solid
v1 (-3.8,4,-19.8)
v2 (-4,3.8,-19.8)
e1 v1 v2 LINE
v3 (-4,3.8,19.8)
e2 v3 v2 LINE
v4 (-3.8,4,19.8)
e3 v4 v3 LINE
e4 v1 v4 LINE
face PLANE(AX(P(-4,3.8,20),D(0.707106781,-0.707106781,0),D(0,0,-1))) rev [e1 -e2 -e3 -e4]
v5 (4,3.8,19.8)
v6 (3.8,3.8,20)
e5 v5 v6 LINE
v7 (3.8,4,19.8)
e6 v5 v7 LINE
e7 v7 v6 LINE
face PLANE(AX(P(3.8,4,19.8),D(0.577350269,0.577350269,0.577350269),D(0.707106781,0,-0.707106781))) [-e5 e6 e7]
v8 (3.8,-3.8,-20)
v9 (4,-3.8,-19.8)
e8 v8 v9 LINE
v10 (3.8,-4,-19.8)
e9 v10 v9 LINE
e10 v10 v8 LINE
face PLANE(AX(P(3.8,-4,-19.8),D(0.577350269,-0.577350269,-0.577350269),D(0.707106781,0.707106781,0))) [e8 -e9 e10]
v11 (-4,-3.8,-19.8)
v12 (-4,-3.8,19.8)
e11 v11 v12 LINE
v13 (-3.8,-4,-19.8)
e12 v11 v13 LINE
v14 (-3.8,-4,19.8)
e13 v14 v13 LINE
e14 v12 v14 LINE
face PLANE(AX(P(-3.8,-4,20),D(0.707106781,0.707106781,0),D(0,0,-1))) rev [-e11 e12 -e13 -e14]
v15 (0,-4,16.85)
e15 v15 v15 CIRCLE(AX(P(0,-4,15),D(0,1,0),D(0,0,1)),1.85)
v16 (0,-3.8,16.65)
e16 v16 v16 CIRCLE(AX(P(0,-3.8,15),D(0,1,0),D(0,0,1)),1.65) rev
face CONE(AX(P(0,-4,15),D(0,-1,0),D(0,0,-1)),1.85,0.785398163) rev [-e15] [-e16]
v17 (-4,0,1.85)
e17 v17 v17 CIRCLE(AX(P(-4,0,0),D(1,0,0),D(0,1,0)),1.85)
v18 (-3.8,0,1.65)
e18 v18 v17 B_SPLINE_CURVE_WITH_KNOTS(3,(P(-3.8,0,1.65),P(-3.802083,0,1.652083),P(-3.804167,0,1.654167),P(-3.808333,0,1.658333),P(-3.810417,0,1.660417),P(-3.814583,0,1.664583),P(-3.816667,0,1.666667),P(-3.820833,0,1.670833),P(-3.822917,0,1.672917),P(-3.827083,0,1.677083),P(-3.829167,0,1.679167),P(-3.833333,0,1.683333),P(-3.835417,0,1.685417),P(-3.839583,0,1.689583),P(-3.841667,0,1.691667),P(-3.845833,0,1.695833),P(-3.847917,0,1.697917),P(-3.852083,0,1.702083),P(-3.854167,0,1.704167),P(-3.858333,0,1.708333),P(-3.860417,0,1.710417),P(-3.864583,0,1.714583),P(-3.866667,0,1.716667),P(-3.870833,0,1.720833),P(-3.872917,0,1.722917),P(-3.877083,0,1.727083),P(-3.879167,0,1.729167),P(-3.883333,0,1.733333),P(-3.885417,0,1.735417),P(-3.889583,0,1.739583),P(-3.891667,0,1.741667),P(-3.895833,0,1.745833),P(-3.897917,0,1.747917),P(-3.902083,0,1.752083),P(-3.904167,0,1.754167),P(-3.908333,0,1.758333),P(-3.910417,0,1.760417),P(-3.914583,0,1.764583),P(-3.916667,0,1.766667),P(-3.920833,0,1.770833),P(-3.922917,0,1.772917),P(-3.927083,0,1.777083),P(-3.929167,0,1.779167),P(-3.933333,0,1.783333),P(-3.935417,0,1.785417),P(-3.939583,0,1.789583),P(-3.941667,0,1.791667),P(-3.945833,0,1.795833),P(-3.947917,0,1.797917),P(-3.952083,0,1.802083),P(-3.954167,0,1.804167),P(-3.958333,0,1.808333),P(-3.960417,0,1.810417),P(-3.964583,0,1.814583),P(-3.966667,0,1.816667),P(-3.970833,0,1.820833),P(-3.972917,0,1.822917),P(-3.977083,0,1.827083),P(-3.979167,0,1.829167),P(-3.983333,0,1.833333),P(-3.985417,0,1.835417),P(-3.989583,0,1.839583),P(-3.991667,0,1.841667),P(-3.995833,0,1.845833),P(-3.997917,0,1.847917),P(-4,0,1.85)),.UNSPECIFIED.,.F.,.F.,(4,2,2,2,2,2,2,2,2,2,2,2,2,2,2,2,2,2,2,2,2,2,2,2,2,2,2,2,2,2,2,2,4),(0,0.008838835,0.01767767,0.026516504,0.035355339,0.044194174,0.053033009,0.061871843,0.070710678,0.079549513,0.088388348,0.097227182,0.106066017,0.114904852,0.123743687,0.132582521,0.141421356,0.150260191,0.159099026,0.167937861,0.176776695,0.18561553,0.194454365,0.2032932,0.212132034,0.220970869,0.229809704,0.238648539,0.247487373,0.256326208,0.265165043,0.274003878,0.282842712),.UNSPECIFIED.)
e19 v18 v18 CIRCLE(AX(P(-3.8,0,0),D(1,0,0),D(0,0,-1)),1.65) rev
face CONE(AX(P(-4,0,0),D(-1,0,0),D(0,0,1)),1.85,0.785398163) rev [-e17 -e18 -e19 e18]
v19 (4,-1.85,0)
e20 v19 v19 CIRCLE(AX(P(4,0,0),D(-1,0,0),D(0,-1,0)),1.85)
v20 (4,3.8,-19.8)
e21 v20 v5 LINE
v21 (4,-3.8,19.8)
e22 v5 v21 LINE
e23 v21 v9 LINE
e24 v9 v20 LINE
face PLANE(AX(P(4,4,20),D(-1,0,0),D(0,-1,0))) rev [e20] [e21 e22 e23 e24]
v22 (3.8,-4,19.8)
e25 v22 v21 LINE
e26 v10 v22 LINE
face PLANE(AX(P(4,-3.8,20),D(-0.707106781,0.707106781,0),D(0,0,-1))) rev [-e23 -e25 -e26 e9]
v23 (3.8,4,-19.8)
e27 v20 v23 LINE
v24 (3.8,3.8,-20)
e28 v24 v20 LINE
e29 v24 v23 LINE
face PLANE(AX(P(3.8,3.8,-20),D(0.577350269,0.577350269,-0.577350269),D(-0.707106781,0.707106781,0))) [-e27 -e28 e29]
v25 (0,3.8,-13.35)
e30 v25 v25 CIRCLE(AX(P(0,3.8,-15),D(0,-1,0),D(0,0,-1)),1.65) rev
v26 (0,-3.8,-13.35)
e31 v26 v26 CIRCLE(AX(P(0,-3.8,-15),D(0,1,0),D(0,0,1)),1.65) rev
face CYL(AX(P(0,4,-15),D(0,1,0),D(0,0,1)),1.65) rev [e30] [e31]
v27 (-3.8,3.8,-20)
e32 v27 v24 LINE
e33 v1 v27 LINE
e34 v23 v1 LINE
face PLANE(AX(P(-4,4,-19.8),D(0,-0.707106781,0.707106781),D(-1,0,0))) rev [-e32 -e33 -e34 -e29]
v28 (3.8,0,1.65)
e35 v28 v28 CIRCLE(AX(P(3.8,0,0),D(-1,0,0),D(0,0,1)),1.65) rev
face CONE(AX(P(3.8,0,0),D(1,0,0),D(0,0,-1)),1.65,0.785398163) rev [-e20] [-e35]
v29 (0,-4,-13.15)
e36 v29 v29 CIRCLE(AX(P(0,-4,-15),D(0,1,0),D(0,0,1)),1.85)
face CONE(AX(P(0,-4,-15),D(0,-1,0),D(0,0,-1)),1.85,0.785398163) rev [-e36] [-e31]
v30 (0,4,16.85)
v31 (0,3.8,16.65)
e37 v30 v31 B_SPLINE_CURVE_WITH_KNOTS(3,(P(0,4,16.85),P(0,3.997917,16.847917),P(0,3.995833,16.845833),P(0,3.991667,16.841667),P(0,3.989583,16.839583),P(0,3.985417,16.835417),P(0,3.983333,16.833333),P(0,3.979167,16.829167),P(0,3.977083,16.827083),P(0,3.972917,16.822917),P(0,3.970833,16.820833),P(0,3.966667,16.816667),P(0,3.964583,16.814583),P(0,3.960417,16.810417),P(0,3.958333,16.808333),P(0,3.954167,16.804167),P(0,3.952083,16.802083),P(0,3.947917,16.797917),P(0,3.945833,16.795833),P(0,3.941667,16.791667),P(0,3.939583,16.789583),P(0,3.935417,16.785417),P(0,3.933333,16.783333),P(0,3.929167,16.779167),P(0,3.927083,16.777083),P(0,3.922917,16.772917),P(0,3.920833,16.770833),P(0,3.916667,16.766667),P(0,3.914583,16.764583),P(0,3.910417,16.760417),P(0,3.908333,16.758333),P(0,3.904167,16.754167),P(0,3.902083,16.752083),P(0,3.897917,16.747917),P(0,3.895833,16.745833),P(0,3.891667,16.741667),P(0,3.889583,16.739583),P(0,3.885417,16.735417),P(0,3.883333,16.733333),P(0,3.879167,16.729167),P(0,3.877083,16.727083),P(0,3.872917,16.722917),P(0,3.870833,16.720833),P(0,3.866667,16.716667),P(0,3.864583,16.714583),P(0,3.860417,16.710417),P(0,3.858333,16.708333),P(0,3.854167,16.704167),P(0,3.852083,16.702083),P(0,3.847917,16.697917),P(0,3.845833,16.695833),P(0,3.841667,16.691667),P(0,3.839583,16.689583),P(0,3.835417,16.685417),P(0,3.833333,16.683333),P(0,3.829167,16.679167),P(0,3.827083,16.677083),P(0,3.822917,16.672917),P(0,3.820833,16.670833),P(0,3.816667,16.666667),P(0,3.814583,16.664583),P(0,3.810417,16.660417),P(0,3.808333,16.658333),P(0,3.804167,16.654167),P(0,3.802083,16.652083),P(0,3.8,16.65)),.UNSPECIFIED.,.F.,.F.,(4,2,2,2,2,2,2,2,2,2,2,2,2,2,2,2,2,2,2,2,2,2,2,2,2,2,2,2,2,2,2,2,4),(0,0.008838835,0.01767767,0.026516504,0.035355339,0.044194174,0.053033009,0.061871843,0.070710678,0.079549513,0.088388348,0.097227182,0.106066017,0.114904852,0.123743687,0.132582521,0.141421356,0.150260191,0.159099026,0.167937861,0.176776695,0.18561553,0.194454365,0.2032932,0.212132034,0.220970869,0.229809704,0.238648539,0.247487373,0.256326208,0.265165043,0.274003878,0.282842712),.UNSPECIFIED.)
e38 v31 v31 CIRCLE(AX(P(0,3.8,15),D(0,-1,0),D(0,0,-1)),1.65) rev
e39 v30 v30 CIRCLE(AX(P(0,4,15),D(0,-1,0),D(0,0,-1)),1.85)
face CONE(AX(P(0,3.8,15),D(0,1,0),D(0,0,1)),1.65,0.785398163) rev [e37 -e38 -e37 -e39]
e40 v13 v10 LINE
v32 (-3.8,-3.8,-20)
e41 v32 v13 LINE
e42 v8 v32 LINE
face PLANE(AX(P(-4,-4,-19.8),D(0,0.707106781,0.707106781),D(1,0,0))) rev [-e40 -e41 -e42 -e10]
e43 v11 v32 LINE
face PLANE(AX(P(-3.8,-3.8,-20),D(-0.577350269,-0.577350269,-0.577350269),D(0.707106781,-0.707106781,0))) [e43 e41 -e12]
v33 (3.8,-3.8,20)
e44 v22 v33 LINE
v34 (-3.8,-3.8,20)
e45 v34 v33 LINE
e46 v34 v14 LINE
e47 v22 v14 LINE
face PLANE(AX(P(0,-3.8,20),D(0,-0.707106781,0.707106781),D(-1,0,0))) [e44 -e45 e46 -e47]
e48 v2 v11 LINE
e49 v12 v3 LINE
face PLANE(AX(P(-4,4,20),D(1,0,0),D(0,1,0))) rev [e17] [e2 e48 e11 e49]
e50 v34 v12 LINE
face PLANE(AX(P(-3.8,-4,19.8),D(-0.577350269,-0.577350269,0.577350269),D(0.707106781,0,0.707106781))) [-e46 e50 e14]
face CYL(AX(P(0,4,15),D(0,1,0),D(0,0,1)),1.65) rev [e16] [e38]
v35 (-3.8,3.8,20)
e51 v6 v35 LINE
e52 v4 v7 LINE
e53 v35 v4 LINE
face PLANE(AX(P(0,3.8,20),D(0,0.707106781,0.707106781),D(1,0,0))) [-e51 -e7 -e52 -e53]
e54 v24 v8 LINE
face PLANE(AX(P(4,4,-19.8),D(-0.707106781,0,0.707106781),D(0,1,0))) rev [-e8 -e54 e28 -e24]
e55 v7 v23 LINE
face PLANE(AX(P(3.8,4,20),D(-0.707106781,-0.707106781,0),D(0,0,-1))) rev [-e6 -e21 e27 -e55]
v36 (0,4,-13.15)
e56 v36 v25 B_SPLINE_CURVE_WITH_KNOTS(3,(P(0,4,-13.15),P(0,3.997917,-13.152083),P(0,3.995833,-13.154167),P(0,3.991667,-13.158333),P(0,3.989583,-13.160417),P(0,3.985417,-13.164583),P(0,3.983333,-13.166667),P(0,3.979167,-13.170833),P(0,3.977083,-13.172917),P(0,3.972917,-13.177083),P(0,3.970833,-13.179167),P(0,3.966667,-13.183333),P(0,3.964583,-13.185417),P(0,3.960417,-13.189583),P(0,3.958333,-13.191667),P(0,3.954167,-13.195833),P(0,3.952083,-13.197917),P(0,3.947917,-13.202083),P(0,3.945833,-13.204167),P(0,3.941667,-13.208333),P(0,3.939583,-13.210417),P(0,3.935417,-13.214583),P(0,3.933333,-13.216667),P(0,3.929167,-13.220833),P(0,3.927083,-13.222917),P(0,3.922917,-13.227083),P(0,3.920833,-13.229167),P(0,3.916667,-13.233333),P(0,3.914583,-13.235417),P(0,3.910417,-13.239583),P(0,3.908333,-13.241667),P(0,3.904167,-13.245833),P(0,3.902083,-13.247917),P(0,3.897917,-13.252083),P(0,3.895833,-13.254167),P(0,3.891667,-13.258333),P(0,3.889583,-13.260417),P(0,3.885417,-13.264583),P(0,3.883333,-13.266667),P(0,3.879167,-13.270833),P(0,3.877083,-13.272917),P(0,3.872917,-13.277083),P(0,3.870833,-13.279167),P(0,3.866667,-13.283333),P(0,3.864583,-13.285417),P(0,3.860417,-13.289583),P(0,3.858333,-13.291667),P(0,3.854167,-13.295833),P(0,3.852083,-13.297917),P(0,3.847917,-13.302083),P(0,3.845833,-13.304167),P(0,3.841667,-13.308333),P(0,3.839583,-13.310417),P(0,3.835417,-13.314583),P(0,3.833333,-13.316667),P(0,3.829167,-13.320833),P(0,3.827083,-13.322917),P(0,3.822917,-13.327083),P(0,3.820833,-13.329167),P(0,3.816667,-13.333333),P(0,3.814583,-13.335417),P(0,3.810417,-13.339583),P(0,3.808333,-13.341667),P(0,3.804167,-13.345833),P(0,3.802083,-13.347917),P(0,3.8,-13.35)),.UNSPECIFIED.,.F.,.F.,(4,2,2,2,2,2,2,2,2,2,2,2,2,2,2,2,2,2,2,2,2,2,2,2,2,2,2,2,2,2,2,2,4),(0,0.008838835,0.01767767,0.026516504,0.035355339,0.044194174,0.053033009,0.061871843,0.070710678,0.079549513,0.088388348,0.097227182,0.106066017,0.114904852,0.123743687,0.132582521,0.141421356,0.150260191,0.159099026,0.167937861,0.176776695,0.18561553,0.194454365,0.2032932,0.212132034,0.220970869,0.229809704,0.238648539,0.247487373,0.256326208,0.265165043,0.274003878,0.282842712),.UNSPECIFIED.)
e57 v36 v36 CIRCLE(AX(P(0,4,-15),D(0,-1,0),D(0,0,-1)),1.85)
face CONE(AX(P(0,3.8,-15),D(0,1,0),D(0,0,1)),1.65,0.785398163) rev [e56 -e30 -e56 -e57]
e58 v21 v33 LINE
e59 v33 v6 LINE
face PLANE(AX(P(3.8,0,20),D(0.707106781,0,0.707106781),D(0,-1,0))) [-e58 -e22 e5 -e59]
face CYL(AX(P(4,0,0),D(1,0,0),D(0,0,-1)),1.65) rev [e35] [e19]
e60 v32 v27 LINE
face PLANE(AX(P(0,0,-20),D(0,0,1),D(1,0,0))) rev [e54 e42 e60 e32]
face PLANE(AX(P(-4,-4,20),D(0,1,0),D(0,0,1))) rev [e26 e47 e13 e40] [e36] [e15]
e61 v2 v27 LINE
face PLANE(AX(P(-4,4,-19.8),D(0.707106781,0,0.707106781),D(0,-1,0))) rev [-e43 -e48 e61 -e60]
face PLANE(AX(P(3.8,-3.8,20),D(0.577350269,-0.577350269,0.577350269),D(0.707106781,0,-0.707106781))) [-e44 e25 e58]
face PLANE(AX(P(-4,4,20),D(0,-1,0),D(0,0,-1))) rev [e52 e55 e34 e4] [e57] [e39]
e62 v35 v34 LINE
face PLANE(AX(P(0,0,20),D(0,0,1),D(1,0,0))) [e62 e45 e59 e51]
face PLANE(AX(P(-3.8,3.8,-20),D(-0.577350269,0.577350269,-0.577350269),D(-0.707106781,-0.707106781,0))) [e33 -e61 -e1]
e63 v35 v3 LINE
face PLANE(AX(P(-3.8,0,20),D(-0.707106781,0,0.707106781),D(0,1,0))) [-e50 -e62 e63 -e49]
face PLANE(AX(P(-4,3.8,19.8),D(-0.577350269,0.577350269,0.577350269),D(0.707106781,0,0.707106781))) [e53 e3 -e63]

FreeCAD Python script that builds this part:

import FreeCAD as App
import Part
import Sketcher

V = App.Vector


def add_polygon(sketch, points):
    """Adds a closed chain of lines whose ends are joined by coincident constraints."""
    first, n = sketch.GeometryCount, len(points)
    for a, b in zip(points, points[1:] + points[:1]):
        sketch.addGeometry(Part.LineSegment(App.Vector(*a, 0), App.Vector(*b, 0)), False)
    for i in range(n):
        sketch.addConstraint(Sketcher.Constraint("Coincident", first + i, 2, first + (i + 1) % n, 1))

doc = App.newDocument("Part")
params = doc.addObject("Spreadsheet::Sheet", "Params")
for row, (alias, value) in enumerate([
    ("sketch1_width", "8 mm"),
    ("pad1_length", "40 mm"),
    ("sketch2_diameter", "3.3 mm"),
    ("hole_diameter", "3.3 mm"),
    ("sketch3_diameter", "3.3 mm"),
    ("hole2_diameter", "3.3 mm"),
    ("chamfer_size", "0.2 mm"),
], start=1):
    params.set(f"A{row}", alias)
    params.set(f"B{row}", "=" + value)
    params.setAlias(f"B{row}", alias)

body = doc.addObject("PartDesign::Body", "Body")

# Sketch on XY plane
sketch1 = doc.addObject("Sketcher::SketchObject", "Sketch")
body.addObject(sketch1)
sketch1.AttachmentSupport = (doc.XY_Plane, [""])
sketch1.MapMode = "FlatFace"
add_polygon(sketch1, [(-4, 4), (-4, -4), (4, -4), (4, 4)])  # lines 0-3
sketch1.addConstraint([
    Sketcher.Constraint("Vertical", 0),
    Sketcher.Constraint("Horizontal", 1),
    Sketcher.Constraint("Vertical", 2),
    Sketcher.Constraint("Horizontal", 3),
    Sketcher.Constraint("Symmetric", 0, 2, 2, 2, -1, 1),
    Sketcher.Constraint("Equal", 3, 0),
    Sketcher.Constraint("DistanceX", 1, 1, 1, 2, 8.0),
])
sketch1.setExpression("Constraints[10]", "Params.sketch1_width")
pad1 = doc.addObject("PartDesign::Pad", "Pad")
body.addObject(pad1)
pad1.Profile = sketch1
pad1.setExpression("Length", "Params.pad1_length")
pad1.Midplane = True

# Sketch on YZ plane
sketch2 = doc.addObject("Sketcher::SketchObject", "Sketch001")
body.addObject(sketch2)
sketch2.AttachmentSupport = (doc.YZ_Plane, [""])
sketch2.MapMode = "FlatFace"
sketch2.AttachmentOffset = App.Placement(V(0, 0, 4), App.Rotation())
sketch2.addGeometry(Part.Circle(V(0, 0, 0), V(0, 0, 1), 1.6), False)
sketch2.addConstraint([
    Sketcher.Constraint("Coincident", 0, 3, -1, 1),
    Sketcher.Constraint("Diameter", 0, 3.3),
])
sketch2.setExpression("Constraints[1]", "Params.sketch2_diameter")
doc.recompute()
hole = doc.addObject("PartDesign::Hole", "Hole")
body.addObject(hole)
hole.Profile = sketch2
hole.ThreadType = "None"
hole.setExpression("Diameter", "Params.hole_diameter")
hole.DepthType = "ThroughAll"

# Sketch on XZ plane
sketch3 = doc.addObject("Sketcher::SketchObject", "Sketch002")
body.addObject(sketch3)
sketch3.AttachmentSupport = (doc.XZ_Plane, [""])
sketch3.MapMode = "FlatFace"
sketch3.AttachmentOffset = App.Placement(V(0, 0, -4), App.Rotation())
sketch3.addGeometry([
    Part.Circle(V(0, 15, 0), V(0, 0, 1), 1.6),
    Part.Circle(V(0, -15, 0), V(0, 0, 1), 1.6),
], False)
sketch3.addConstraint([
    Sketcher.Constraint("Equal", 0, 1),
    Sketcher.Constraint("Symmetric", 0, 3, 1, 3, -1, 1),
    Sketcher.Constraint("PointOnObject", 0, 3, -2),
    Sketcher.Constraint("Diameter", 0, 3.3),
    Sketcher.Constraint("DistanceY", -1, 1, 0, 3, 15.0),
])
sketch3.setExpression("Constraints[3]", "Params.sketch3_diameter")
doc.recompute()
hole2 = doc.addObject("PartDesign::Hole", "Hole001")
body.addObject(hole2)
hole2.Profile = sketch3
hole2.ThreadType = "None"
hole2.setExpression("Diameter", "Params.hole2_diameter")
hole2.DepthType = "ThroughAll"
hole2.Reversed = True
doc.recompute()

chamfer = doc.addObject("PartDesign::Chamfer", "Chamfer")
body.addObject(chamfer)
chamfer.Base = (hole2, ["Edge1"])
chamfer.UseAllEdges = True
chamfer.setExpression("Size", "Params.chamfer_size")

doc.recompute()
